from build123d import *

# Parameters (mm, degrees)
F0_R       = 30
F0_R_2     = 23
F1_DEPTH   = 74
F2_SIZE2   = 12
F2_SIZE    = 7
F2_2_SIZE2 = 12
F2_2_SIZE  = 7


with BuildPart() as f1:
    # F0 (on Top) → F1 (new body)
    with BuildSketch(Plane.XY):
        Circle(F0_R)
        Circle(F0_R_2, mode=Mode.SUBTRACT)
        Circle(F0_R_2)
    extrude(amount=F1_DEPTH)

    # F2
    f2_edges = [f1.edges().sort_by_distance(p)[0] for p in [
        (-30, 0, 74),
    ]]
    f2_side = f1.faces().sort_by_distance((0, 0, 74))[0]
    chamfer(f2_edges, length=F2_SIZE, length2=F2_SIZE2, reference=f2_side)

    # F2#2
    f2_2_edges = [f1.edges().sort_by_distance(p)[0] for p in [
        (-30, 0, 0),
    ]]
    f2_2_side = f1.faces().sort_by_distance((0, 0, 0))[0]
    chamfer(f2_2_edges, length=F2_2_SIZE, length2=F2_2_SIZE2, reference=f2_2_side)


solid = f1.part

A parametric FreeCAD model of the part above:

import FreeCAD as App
import Part
import Sketcher
from FreeCAD import Vector
Q = App.Units.Quantity


def edges_at(feature, points):
    """Names of the edges that pass closest to the given points."""
    edges = feature.Shape.Edges
    near = lambda p: min(range(len(edges)), key=lambda i: edges[i].distToShape(Part.Vertex(*p))[0])
    return sorted({f"Edge{near(p) + 1}" for p in points})

doc = App.newDocument("Part")
params = doc.addObject("Spreadsheet::Sheet", "Params")
for row, (alias, value) in enumerate([
    ("sketch1_diameter", "60 mm"),
    ("pad1_length", "74 mm"),
    ("chamfer_size", "7 mm"),
    ("chamfer_size2", "12 mm"),
    ("chamfer2_size", "7 mm"),
    ("chamfer2_size2", "12 mm"),
], start=1):
    params.set(f"A{row}", alias)
    params.set(f"B{row}", "=" + value)
    params.setAlias(f"B{row}", alias)

body = doc.addObject("PartDesign::Body", "Body")

# Sketch on XY plane
sketch1 = body.newObject("Sketcher::SketchObject", "Sketch")
sketch1.AttachmentSupport = (doc.getObject("XY_Plane"), [""])
sketch1.MapMode = "FlatFace"
sketch1.addGeometry(Part.Circle(Vector(0, 0, 0), Vector(0, 0, 1), 30), False)
sketch1.addConstraint([
    Sketcher.Constraint("Coincident", 0, 3, -1, 1),
    Sketcher.Constraint("Diameter", 0, Q("60 mm")),
])
sketch1.setExpression("Constraints[1]", "Params.sketch1_diameter")
pad1 = body.newObject("PartDesign::Pad", "Pad")
pad1.Profile = sketch1
pad1.setExpression("Length", "Params.pad1_length")
doc.recompute()

chamfer = body.newObject("PartDesign::Chamfer", "Chamfer")
chamfer.Base = (pad1, edges_at(pad1, [(-30, 0, 74)]))
chamfer.ChamferType = "Two distances"
chamfer.setExpression("Size", "Params.chamfer_size")
chamfer.setExpression("Size2", "Params.chamfer_size2")
chamfer.FlipDirection = True
doc.recompute()

chamfer2 = body.newObject("PartDesign::Chamfer", "Chamfer001")
chamfer2.Base = (chamfer, edges_at(chamfer, [(-30, 0, 0)]))
chamfer2.ChamferType = "Two distances"
chamfer2.setExpression("Size", "Params.chamfer2_size")
chamfer2.setExpression("Size2", "Params.chamfer2_size2")
chamfer2.FlipDirection = True

doc.recompute()
